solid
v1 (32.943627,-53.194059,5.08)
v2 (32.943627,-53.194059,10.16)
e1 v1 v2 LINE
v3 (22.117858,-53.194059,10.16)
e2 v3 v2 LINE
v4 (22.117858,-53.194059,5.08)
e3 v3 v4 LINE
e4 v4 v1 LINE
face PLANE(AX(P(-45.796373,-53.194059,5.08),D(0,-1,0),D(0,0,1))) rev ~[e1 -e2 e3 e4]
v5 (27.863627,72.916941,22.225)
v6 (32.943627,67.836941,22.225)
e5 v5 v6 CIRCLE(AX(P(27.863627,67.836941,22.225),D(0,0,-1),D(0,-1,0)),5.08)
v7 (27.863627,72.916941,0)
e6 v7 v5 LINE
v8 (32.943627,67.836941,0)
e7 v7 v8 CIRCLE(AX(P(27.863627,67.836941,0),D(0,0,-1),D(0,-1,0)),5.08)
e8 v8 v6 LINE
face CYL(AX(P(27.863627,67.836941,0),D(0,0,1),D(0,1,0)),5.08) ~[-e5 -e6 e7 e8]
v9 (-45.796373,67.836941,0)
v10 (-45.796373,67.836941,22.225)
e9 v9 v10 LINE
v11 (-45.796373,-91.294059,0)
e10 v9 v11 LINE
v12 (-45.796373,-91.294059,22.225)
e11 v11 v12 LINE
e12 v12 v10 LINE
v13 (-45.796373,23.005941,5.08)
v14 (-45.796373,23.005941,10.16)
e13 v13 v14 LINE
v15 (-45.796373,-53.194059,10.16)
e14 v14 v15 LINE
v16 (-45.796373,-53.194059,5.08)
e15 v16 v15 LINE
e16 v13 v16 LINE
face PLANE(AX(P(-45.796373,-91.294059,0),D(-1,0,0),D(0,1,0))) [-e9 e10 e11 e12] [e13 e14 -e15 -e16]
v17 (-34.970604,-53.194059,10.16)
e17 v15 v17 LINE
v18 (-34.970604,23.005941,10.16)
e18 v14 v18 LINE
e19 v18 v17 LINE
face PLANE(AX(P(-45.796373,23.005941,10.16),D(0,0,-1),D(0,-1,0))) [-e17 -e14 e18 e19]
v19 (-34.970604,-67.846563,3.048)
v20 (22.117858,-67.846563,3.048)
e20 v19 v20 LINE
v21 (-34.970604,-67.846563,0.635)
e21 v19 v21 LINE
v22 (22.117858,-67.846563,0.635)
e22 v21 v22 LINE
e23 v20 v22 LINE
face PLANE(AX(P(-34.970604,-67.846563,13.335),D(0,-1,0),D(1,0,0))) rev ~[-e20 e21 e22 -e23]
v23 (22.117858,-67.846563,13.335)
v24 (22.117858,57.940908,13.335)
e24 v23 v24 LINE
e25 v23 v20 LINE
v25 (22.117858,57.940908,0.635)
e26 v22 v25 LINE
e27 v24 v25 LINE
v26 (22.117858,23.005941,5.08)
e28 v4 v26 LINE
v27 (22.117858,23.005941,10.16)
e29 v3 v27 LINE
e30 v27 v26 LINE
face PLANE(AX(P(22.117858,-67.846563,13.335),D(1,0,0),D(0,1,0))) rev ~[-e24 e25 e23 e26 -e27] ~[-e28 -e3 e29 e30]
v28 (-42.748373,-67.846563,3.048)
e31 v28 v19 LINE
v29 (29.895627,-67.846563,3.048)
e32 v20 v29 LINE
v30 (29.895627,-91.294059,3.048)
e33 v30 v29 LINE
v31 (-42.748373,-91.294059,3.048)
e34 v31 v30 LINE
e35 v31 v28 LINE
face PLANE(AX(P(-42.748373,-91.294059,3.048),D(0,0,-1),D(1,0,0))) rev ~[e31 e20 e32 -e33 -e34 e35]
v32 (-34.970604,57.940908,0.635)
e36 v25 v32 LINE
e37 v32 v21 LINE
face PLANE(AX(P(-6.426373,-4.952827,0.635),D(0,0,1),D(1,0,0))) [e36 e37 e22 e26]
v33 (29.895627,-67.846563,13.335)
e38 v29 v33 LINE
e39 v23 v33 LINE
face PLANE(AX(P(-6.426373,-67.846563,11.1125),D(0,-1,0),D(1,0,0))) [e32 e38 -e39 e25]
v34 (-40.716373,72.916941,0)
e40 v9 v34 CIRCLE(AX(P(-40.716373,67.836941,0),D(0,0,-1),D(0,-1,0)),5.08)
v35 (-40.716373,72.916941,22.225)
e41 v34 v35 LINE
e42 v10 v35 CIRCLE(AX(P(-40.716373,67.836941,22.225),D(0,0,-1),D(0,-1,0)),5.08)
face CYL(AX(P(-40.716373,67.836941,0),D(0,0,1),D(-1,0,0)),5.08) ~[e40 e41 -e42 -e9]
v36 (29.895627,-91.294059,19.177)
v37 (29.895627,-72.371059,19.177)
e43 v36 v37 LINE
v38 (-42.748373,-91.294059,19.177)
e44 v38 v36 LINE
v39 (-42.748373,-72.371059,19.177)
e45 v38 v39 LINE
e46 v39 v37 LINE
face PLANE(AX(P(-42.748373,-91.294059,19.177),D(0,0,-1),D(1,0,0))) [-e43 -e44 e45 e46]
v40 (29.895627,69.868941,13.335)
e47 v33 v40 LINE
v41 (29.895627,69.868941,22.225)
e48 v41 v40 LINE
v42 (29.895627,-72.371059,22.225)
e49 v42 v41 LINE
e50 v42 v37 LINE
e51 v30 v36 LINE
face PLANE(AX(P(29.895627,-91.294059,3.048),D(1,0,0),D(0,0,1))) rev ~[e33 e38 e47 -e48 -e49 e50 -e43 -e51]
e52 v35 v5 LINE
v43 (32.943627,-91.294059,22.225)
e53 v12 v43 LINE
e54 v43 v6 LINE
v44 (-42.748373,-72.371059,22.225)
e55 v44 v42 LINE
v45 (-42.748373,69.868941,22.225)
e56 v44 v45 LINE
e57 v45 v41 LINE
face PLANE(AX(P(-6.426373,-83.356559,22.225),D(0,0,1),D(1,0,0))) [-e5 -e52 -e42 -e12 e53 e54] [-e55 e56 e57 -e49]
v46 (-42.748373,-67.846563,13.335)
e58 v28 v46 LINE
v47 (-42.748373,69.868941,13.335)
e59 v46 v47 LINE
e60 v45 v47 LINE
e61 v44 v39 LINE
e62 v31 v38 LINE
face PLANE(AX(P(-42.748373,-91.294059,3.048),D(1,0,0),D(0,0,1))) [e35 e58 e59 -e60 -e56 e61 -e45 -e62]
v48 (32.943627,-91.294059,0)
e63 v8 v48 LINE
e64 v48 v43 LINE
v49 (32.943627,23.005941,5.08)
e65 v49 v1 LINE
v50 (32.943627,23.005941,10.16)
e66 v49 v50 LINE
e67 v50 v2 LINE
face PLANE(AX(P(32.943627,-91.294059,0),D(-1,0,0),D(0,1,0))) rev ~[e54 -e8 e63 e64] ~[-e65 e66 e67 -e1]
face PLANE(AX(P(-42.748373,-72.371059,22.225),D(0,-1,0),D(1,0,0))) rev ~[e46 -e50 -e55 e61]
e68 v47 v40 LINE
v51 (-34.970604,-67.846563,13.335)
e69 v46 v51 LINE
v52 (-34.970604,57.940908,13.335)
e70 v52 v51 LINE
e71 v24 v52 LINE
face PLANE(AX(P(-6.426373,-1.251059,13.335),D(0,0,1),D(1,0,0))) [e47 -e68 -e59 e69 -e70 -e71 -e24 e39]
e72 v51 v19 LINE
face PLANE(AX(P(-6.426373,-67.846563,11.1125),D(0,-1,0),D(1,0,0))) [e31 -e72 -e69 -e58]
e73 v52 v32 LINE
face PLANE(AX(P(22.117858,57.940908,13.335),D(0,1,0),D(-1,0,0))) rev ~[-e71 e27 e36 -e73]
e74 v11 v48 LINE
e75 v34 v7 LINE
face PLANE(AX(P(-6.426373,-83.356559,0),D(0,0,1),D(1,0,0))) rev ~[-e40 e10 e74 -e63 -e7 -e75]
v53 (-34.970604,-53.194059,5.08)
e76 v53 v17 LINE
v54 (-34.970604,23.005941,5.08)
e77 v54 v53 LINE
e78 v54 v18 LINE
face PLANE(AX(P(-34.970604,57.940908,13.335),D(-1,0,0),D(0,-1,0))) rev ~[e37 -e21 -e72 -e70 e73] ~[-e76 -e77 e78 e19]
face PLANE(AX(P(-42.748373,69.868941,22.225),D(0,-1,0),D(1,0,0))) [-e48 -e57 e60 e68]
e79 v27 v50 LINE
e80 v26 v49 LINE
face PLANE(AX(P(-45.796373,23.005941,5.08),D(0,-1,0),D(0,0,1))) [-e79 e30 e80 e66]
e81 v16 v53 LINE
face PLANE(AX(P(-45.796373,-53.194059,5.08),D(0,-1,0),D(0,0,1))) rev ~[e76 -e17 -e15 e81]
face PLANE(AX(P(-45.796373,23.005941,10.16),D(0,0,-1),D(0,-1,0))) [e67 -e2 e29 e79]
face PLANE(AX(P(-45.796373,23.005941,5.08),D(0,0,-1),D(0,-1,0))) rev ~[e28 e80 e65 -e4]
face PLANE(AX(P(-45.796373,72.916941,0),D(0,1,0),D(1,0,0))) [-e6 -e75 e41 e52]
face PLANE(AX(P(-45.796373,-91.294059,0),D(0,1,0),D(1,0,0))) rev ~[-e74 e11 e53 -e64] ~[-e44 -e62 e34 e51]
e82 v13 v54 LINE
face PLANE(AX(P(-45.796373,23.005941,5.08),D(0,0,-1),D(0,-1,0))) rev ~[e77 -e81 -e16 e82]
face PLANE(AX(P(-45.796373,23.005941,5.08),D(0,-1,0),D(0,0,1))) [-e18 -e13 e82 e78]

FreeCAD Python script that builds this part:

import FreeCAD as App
import Part
import Sketcher
from FreeCAD import Vector
Q = App.Units.Quantity


def edges_at(feature, points):
    """Names of the edges that pass closest to the given points."""
    edges = feature.Shape.Edges
    near = lambda p: min(range(len(edges)), key=lambda i: edges[i].distToShape(Part.Vertex(*p))[0])
    return sorted({f"Edge{near(p) + 1}" for p in points})


def add_polygon(sketch, points):
    """Adds a closed chain of lines whose ends are joined by coincident constraints."""
    first, n = sketch.GeometryCount, len(points)
    for a, b in zip(points, points[1:] + points[:1]):
        sketch.addGeometry(Part.LineSegment(App.Vector(*a, 0), App.Vector(*b, 0)), False)
    for i in range(n):
        sketch.addConstraint(Sketcher.Constraint("Coincident", first + i, 2, first + (i + 1) % n, 1))

doc = App.newDocument("Part")
body = doc.addObject("PartDesign::Body", "Body")

sketch1 = doc.addObject("Sketcher::SketchObject", "Sketch")
body.addObject(sketch1)
sketch1.AttachmentSupport = (doc.XY_Plane, [""])
sketch1.MapMode = "FlatFace"
add_polygon(sketch1, [(-46, 73), (-46, -75), (33, -75), (33, 73)])
sketch1.addConstraint([
    Sketcher.Constraint("Vertical", 0),
    Sketcher.Constraint("Horizontal", 1),
    Sketcher.Constraint("Vertical", 2),
    Sketcher.Constraint("Horizontal", 3),
    Sketcher.Constraint("DistanceX", 1, 1, 1, 2, Q("3.1 in")),
    Sketcher.Constraint("DistanceY", 0, 2, 0, 1, Q("5.84 in")),
    Sketcher.Constraint("DistanceY", 0, 2, -1, 1, Q("75.419059 mm")),
    Sketcher.Constraint("DistanceX", 0, 2, -1, 1, Q("45.796373 mm")),
])
pad1 = doc.addObject("PartDesign::Pad", "Pad")
body.addObject(pad1)
pad1.Profile = sketch1
pad1.Length = Q("0.875 in")

sketch2 = doc.addObject("Sketcher::SketchObject", "Sketch001")
body.addObject(sketch2)
sketch2.AttachmentSupport = (doc.XY_Plane, [""])
sketch2.MapMode = "FlatFace"
sketch2.AttachmentOffset = App.Placement(Vector(0, 0, 0.875 * 25.4), App.Rotation())
add_polygon(sketch2, [(-43, 70), (-43, -72), (30, -72), (30, 70)])
sketch2.addConstraint([
    Sketcher.Constraint("Vertical", 0),
    Sketcher.Constraint("Horizontal", 1),
    Sketcher.Constraint("Vertical", 2),
    Sketcher.Constraint("Horizontal", 3),
    Sketcher.Constraint("DistanceY", 0, 2, 0, 1, Q("5.6 in")),
    Sketcher.Constraint("DistanceX", 1, 1, 1, 2, Q("2.86 in")),
    Sketcher.Constraint("DistanceY", 0, 2, -1, 1, Q("72.371059 mm")),
    Sketcher.Constraint("DistanceX", 0, 2, -1, 1, Q("42.748373 mm")),
])
pocket1 = doc.addObject("PartDesign::Pocket", "Pocket")
body.addObject(pocket1)
pocket1.Profile = sketch2
pocket1.Length = Q("0.35 in")

sketch3 = doc.addObject("Sketcher::SketchObject", "Sketch002")
body.addObject(sketch3)
sketch3.AttachmentSupport = (doc.XY_Plane, [""])
sketch3.MapMode = "FlatFace"
sketch3.AttachmentOffset = App.Placement(Vector(0, 0, 0.525 * 25.4), App.Rotation())
add_polygon(sketch3, [(-35, 58), (-35, -68), (22, -68), (22, 58)])
sketch3.addConstraint([
    Sketcher.Constraint("Vertical", 0),
    Sketcher.Constraint("Horizontal", 1),
    Sketcher.Constraint("Vertical", 2),
    Sketcher.Constraint("Horizontal", 3),
    Sketcher.Constraint("DistanceY", 0, 2, 0, 1, Q("125.787471 mm")),
    Sketcher.Constraint("DistanceX", 1, 1, 1, 2, Q("57.088462 mm")),
    Sketcher.Constraint("DistanceX", 0, 2, -1, 1, Q("34.970604 mm")),
    Sketcher.Constraint("DistanceY", 0, 2, -1, 1, Q("67.846563 mm")),
])
pocket2 = doc.addObject("PartDesign::Pocket", "Pocket001")
body.addObject(pocket2)
pocket2.Profile = sketch3
pocket2.Length = Q("0.5 in")

sketch4 = doc.addObject("Sketcher::SketchObject", "Sketch003")
body.addObject(sketch4)
sketch4.AttachmentSupport = (doc.XY_Plane, [""])
sketch4.MapMode = "FlatFace"
add_polygon(sketch4, [(-46, -75), (-46, -91), (33, -91), (33, -75)])
sketch4.addConstraint([
    Sketcher.Constraint("Vertical", 0),
    Sketcher.Constraint("Horizontal", 1),
    Sketcher.Constraint("Vertical", 2),
    Sketcher.Constraint("Horizontal", 3),
    Sketcher.Constraint("DistanceX", 1, 1, 1, 2, Q("3.1 in")),
    Sketcher.Constraint("DistanceY", 0, 2, 0, 1, Q("0.625 in")),
    Sketcher.Constraint("DistanceY", 0, 2, -1, 1, Q("91.294059 mm")),
    Sketcher.Constraint("DistanceX", 0, 2, -1, 1, Q("45.796373 mm")),
])
pad2 = doc.addObject("PartDesign::Pad", "Pad001")
body.addObject(pad2)
pad2.Profile = sketch4
pad2.Length = Q("0.875 in")

sketch5 = doc.addObject("Sketcher::SketchObject", "Sketch004")
body.addObject(sketch5)
sketch5.AttachmentSupport = (doc.XZ_Plane, [""])
sketch5.MapMode = "FlatFace"
sketch5.AttachmentOffset = App.Placement(Vector(0, 0, 91.294059), App.Rotation())
add_polygon(sketch5, [(-43, 19), (-43, 3), (30, 3), (30, 19)])
sketch5.addConstraint([
    Sketcher.Constraint("Vertical", 0),
    Sketcher.Constraint("Horizontal", 1),
    Sketcher.Constraint("Vertical", 2),
    Sketcher.Constraint("Horizontal", 3),
    Sketcher.Constraint("DistanceX", 1, 1, 1, 2, Q("2.86 in")),
    Sketcher.Constraint("DistanceY", 0, 2, 0, 1, Q("0.635 in")),
    Sketcher.Constraint("DistanceY", -1, 1, 0, 2, Q("0.12 in")),
    Sketcher.Constraint("DistanceX", 0, 2, -1, 1, Q("42.748373 mm")),
])
pocket3 = doc.addObject("PartDesign::Pocket", "Pocket002")
body.addObject(pocket3)
pocket3.Profile = sketch5
pocket3.Length = 23.447496

sketch6 = doc.addObject("Sketcher::SketchObject", "Sketch005")
body.addObject(sketch6)
sketch6.AttachmentSupport = (doc.YZ_Plane, [""])
sketch6.MapMode = "FlatFace"
sketch6.AttachmentOffset = App.Placement(Vector(0, 0, -45.796373), App.Rotation())
add_polygon(sketch6, [(23, 10), (23, 5), (-53, 5), (-53, 10)])
sketch6.addConstraint([
    Sketcher.Constraint("Vertical", 0),
    Sketcher.Constraint("Horizontal", 1),
    Sketcher.Constraint("Vertical", 2),
    Sketcher.Constraint("Horizontal", 3),
    Sketcher.Constraint("DistanceX", 1, 2, 1, 1, Q("3 in")),
    Sketcher.Constraint("DistanceY", 0, 2, 0, 1, Q("0.2 in")),
    Sketcher.Constraint("DistanceY", -1, 1, 0, 2, Q("0.2 in")),
    Sketcher.Constraint("DistanceX", -1, 1, 0, 2, Q("23.005941 mm")),
])
pocket4 = doc.addObject("PartDesign::Pocket", "Pocket003")
body.addObject(pocket4)
pocket4.Profile = sketch6
pocket4.Type = "ThroughAll"
pocket4.Reversed = True
doc.recompute()

fillet = doc.addObject("PartDesign::Fillet", "Fillet")
body.addObject(fillet)
fillet.Base = (pocket4, edges_at(pocket4, [(-45.796, 72.917, 11.113), (32.944, 72.917, 11.113)]))
fillet.Radius = Q("0.2 in")

doc.recompute()
